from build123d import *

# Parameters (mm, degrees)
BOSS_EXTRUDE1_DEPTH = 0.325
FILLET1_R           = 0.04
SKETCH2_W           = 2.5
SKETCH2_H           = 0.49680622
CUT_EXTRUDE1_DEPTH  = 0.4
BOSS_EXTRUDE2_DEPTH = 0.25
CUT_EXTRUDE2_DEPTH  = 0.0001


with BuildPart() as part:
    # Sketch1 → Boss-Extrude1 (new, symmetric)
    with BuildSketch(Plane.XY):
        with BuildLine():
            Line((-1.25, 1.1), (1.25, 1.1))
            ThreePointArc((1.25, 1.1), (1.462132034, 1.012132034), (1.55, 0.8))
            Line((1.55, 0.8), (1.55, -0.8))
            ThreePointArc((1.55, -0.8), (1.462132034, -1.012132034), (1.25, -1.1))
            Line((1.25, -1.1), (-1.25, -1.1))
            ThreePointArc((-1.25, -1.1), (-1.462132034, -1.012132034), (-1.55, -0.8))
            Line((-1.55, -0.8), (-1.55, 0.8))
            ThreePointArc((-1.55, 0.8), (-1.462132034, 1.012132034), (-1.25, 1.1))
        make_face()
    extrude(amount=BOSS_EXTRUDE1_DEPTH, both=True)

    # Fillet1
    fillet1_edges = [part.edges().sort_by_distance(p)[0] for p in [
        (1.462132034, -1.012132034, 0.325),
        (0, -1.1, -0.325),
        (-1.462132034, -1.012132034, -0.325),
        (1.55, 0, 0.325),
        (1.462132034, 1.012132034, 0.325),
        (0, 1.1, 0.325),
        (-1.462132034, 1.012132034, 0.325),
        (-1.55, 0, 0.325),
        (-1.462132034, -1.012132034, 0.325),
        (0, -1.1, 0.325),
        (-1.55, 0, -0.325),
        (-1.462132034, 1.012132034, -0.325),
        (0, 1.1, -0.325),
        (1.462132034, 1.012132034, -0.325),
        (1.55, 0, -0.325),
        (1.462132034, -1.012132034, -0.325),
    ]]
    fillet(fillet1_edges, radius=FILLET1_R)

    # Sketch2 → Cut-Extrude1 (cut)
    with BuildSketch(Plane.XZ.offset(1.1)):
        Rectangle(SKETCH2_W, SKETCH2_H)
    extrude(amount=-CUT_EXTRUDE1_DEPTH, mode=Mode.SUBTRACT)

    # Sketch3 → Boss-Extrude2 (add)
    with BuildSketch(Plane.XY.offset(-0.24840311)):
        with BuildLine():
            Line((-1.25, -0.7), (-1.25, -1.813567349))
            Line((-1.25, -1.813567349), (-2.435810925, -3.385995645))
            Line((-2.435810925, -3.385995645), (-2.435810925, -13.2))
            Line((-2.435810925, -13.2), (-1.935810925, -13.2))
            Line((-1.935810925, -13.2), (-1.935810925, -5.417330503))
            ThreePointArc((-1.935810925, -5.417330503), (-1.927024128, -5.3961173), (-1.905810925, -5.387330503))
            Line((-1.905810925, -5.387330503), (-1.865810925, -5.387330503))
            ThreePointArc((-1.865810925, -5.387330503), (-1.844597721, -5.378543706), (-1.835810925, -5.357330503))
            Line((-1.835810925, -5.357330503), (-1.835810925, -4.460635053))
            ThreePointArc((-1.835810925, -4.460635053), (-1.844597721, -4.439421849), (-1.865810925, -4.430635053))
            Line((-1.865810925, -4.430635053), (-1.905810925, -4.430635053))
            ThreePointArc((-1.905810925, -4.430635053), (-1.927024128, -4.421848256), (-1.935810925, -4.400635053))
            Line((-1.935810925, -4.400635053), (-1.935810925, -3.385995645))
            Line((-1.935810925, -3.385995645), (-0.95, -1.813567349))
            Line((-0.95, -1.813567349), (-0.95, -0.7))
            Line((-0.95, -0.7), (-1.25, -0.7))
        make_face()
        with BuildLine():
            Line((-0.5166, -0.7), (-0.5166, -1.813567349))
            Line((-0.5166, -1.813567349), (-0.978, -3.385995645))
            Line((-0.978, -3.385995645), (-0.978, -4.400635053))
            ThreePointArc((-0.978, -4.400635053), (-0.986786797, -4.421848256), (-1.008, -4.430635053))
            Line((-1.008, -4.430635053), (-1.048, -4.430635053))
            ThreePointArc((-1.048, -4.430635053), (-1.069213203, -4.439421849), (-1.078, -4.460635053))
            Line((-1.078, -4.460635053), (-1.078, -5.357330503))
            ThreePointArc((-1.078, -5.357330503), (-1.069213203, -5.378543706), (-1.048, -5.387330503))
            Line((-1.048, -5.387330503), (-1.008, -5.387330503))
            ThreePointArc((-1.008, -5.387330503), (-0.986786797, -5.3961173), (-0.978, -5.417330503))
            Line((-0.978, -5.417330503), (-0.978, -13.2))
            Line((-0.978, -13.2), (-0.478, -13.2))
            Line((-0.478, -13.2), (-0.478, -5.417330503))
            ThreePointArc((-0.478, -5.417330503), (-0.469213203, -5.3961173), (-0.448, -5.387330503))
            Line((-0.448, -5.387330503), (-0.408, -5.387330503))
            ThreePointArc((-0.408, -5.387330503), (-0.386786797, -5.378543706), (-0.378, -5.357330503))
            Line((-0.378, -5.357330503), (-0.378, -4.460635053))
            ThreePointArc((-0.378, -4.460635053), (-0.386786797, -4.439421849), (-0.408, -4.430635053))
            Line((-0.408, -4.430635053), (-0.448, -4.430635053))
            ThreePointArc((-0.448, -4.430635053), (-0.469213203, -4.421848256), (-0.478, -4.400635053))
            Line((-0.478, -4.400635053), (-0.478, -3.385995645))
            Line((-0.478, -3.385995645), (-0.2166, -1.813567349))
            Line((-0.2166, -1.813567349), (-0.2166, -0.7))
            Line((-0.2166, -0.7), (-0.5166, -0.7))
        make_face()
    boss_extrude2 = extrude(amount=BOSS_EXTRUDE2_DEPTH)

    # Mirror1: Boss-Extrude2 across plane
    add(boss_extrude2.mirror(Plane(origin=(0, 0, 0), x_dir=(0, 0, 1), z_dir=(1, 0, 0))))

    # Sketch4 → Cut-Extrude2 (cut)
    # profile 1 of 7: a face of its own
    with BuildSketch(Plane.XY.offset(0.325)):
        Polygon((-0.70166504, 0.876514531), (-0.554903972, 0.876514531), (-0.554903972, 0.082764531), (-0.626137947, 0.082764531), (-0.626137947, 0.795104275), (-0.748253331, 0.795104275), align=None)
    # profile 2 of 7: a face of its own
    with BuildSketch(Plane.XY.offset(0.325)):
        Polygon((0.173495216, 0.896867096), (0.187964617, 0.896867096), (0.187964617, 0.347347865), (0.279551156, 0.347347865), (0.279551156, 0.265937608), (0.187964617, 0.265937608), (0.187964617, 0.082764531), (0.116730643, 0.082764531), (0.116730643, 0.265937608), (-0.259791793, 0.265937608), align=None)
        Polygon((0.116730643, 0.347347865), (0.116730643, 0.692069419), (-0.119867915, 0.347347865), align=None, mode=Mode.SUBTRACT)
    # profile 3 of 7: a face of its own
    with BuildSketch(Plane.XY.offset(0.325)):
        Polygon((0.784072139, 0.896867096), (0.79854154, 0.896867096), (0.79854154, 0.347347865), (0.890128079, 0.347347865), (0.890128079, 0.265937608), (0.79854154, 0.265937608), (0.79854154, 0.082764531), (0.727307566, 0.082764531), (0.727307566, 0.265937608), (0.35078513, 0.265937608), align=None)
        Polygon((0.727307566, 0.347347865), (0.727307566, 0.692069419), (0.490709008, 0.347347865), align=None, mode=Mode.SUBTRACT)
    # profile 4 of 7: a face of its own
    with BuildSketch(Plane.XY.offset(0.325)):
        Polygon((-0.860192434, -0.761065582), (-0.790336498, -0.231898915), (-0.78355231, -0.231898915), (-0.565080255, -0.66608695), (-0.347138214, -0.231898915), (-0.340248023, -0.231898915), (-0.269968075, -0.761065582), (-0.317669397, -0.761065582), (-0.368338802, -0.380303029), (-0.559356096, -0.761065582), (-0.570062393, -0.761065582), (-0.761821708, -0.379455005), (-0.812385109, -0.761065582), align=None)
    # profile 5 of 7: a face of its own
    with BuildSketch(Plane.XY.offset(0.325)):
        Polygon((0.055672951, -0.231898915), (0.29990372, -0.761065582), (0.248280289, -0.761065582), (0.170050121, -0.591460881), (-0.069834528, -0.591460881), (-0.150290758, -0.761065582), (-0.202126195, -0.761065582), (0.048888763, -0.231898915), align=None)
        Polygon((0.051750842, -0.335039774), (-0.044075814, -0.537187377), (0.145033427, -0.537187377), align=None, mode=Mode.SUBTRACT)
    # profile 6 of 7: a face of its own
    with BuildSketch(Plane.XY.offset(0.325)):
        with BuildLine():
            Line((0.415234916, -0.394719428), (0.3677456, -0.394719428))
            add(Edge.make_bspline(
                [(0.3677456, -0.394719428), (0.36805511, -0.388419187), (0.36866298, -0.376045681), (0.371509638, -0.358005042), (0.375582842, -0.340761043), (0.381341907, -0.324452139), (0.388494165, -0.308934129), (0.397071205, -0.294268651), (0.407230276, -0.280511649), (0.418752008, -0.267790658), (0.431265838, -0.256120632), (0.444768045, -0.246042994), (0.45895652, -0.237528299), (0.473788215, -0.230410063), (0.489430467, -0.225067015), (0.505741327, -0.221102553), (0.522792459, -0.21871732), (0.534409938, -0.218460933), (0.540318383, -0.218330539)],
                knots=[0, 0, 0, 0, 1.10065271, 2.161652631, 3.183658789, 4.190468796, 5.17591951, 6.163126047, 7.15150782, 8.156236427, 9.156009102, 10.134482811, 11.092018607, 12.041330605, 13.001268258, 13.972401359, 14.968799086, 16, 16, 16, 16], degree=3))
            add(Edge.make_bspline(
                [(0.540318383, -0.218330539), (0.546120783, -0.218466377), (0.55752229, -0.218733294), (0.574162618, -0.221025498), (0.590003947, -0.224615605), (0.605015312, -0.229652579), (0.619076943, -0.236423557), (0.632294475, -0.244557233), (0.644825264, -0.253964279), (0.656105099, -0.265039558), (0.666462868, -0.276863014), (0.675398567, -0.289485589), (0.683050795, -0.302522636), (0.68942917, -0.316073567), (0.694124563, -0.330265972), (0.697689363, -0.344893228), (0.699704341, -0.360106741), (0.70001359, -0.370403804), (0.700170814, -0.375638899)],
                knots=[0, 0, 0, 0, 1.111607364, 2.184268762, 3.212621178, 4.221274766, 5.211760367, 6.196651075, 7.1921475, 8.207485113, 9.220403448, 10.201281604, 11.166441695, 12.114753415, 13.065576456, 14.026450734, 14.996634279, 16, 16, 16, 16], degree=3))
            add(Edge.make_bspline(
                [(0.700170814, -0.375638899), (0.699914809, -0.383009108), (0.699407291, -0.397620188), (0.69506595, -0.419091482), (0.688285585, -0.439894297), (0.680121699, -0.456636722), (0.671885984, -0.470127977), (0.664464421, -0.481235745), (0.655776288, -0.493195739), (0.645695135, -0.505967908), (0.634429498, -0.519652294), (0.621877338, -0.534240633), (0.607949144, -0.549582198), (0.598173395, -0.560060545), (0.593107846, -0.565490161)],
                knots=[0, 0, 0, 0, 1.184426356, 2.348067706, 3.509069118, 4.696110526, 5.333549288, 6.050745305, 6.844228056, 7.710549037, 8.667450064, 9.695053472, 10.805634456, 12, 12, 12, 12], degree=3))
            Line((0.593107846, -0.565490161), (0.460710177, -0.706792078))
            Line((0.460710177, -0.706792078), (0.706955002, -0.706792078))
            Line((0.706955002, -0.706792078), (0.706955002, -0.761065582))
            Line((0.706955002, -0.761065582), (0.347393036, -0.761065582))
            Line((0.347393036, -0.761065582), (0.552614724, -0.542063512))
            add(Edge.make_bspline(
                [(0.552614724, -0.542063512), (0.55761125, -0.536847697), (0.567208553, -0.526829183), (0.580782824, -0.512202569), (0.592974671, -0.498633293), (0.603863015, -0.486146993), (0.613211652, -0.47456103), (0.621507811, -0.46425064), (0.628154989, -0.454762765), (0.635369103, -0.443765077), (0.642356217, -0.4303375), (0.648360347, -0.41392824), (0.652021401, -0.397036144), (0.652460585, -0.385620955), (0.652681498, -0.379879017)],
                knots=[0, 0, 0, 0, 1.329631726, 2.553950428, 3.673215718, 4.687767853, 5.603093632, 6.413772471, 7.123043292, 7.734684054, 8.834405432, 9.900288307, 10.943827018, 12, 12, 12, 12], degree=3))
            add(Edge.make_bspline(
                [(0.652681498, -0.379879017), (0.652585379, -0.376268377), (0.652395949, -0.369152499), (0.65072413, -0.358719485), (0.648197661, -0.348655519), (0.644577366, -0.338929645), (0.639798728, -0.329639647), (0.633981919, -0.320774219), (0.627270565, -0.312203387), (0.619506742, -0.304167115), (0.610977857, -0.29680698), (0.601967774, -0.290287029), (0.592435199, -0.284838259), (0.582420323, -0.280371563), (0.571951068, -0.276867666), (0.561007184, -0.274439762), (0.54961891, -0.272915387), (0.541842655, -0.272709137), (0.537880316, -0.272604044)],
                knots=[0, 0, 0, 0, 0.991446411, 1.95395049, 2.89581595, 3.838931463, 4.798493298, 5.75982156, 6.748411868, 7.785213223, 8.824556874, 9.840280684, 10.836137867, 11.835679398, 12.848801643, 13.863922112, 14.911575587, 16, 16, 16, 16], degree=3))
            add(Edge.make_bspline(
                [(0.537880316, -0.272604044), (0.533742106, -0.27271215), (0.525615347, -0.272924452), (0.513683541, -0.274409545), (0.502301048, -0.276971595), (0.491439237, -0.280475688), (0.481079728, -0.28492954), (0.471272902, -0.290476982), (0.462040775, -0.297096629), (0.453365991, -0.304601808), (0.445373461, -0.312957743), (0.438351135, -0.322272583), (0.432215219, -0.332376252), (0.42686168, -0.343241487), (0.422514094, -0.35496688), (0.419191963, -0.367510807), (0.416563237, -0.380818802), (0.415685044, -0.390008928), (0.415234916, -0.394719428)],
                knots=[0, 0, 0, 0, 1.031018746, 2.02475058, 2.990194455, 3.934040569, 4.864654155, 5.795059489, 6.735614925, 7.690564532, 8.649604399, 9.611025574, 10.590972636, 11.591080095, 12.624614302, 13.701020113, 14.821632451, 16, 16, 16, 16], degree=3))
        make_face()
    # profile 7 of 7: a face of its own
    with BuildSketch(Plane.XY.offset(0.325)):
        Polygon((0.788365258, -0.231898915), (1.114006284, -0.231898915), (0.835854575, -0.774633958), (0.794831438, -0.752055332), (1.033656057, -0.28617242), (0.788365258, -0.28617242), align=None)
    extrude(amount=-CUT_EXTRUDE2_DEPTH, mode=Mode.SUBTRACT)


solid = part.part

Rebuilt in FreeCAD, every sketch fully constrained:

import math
import FreeCAD as App
import Part
import Sketcher


def edges_at(feature, points):
    """Names of the edges that pass closest to the given points."""
    edges = feature.Shape.Edges
    near = lambda p: min(range(len(edges)), key=lambda i: edges[i].distToShape(Part.Vertex(*p))[0])
    return sorted({f"Edge{near(p) + 1}" for p in points})


def add_polygon(sketch, points):
    """Adds a closed chain of lines whose ends are joined by coincident constraints."""
    first, n = sketch.GeometryCount, len(points)
    for a, b in zip(points, points[1:] + points[:1]):
        sketch.addGeometry(Part.LineSegment(App.Vector(*a, 0), App.Vector(*b, 0)), False)
    for i in range(n):
        sketch.addConstraint(Sketcher.Constraint("Coincident", first + i, 2, first + (i + 1) % n, 1))

doc = App.newDocument("Part")
params = doc.addObject("Spreadsheet::Sheet", "Params")
for row, (alias, value) in enumerate([
    ("sketch1_radius", "0.3 mm"),
    ("sketch1_width", "2.5 mm"),
    ("sketch1_height", "1.6 mm"),
    ("pad1_length", "0.65 mm"),
    ("fillet_radius", "0.04 mm"),
    ("sketch2_width", "2.5 mm"),
    ("pocket1_length", "0.4 mm"),
    ("sketch3_radius", "0.03 mm"),
    ("sketch3_width", "0.5 mm"),
    ("sketch3_width2", "0.3 mm"),
    ("sketch3_width3", "0.04 mm"),
    ("pad2_length", "0.25 mm"),
    ("pocket2_length", "0.0001 mm"),
], start=1):
    params.set(f"A{row}", alias)
    params.set(f"B{row}", "=" + value)
    params.setAlias(f"B{row}", alias)

body = doc.addObject("PartDesign::Body", "Body")

sketch1 = body.newObject("Sketcher::SketchObject", "Sketch")
sketch1.AttachmentSupport = (doc.getObject("XY_Plane"), [""])
sketch1.MapMode = "FlatFace"
sketch1.addGeometry(Part.LineSegment(App.Vector(1.25, 1.1, 0), App.Vector(-1.25, 1.1, 0)), False)
sketch1.addGeometry(Part.ArcOfCircle(Part.Circle(App.Vector(-1.25, 0.8, 0), App.Vector(0, 0, 1), 0.3), math.radians(90), math.radians(180)), False)
sketch1.addGeometry(Part.LineSegment(App.Vector(-1.55, 0.8, 0), App.Vector(-1.55, -0.8, 0)), False)
sketch1.addGeometry(Part.ArcOfCircle(Part.Circle(App.Vector(-1.25, -0.8, 0), App.Vector(0, 0, 1), 0.3), math.radians(-180), math.radians(-90)), False)
sketch1.addGeometry(Part.LineSegment(App.Vector(-1.25, -1.1, 0), App.Vector(1.25, -1.1, 0)), False)
sketch1.addGeometry(Part.ArcOfCircle(Part.Circle(App.Vector(1.25, -0.8, 0), App.Vector(0, 0, 1), 0.3), math.radians(-90), math.radians(0)), False)
sketch1.addGeometry(Part.LineSegment(App.Vector(1.55, -0.8, 0), App.Vector(1.55, 0.8, 0)), False)
sketch1.addGeometry(Part.ArcOfCircle(Part.Circle(App.Vector(1.25, 0.8, 0), App.Vector(0, 0, 1), 0.3), math.radians(0), math.radians(90)), False)
sketch1.addConstraint(Sketcher.Constraint("Tangent", 0, 2, 1, 1))
sketch1.addConstraint(Sketcher.Constraint("Tangent", 1, 2, 2, 1))
sketch1.addConstraint(Sketcher.Constraint("Tangent", 2, 2, 3, 1))
sketch1.addConstraint(Sketcher.Constraint("Tangent", 3, 2, 4, 1))
sketch1.addConstraint(Sketcher.Constraint("Tangent", 4, 2, 5, 1))
sketch1.addConstraint(Sketcher.Constraint("Tangent", 5, 2, 6, 1))
sketch1.addConstraint(Sketcher.Constraint("Tangent", 6, 2, 7, 1))
sketch1.addConstraint(Sketcher.Constraint("Tangent", 7, 2, 0, 1))
sketch1.addConstraint(Sketcher.Constraint("Horizontal", 0))
sketch1.addConstraint(Sketcher.Constraint("Vertical", 2))
sketch1.addConstraint(Sketcher.Constraint("Horizontal", 4))
sketch1.addConstraint(Sketcher.Constraint("Vertical", 6))
sketch1.addConstraint(Sketcher.Constraint("Equal", 1, 3))
sketch1.addConstraint(Sketcher.Constraint("Equal", 3, 5))
sketch1.addConstraint(Sketcher.Constraint("Equal", 5, 7))
sketch1.addConstraint(Sketcher.Constraint("Symmetric", 1, 3, 5, 3, -1, 1))
sketch1.addConstraint(Sketcher.Constraint("Radius", 1, 0.3))
sketch1.addConstraint(Sketcher.Constraint("DistanceX", 0, 2, 0, 1, 2.5))
sketch1.addConstraint(Sketcher.Constraint("DistanceY", 2, 2, 2, 1, 1.6))
sketch1.setExpression("Constraints[16]", "Params.sketch1_radius")
sketch1.setExpression("Constraints[17]", "Params.sketch1_width")
sketch1.setExpression("Constraints[18]", "Params.sketch1_height")
pad1 = body.newObject("PartDesign::Pad", "Pad")
pad1.Profile = sketch1
pad1.setExpression("Length", "Params.pad1_length")
pad1.Midplane = True
doc.recompute()

fillet = body.newObject("PartDesign::Fillet", "Fillet")
fillet.Base = (pad1, edges_at(pad1, [
    (1.462, -1.012, 0.325),
    (0, -1.1, -0.325),
    (-1.462, -1.012, -0.325),
    (1.55, 0, 0.325),
    (1.462, 1.012, 0.325),
    (0, 1.1, 0.325),
    (-1.462, 1.012, 0.325),
    (-1.55, 0, 0.325),
    (-1.462, -1.012, 0.325),
    (0, -1.1, 0.325),
    (-1.55, 0, -0.325),
    (-1.462, 1.012, -0.325),
    (0, 1.1, -0.325),
    (1.462, 1.012, -0.325),
    (1.55, 0, -0.325),
    (1.462, -1.012, -0.325),
]))
fillet.setExpression("Radius", "Params.fillet_radius")

sketch2 = body.newObject("Sketcher::SketchObject", "Sketch001")
sketch2.AttachmentSupport = (doc.getObject("XZ_Plane"), [""])
sketch2.MapMode = "FlatFace"
sketch2.AttachmentOffset = App.Placement(App.Vector(0, 0, 1.1), App.Rotation())
add_polygon(sketch2, [(-1.25, 0.25), (-1.25, -0.25), (1.25, -0.25), (1.25, 0.25)])
sketch2.addConstraint(Sketcher.Constraint("Vertical", 0))
sketch2.addConstraint(Sketcher.Constraint("Horizontal", 1))
sketch2.addConstraint(Sketcher.Constraint("Vertical", 2))
sketch2.addConstraint(Sketcher.Constraint("Horizontal", 3))
sketch2.addConstraint(Sketcher.Constraint("Symmetric", 0, 2, 2, 2, -1, 1))
sketch2.addConstraint(Sketcher.Constraint("DistanceX", 1, 1, 1, 2, 2.5))
sketch2.addConstraint(Sketcher.Constraint("DistanceY", 0, 2, 0, 1, 0.496806))
sketch2.setExpression("Constraints[9]", "Params.sketch2_width")
pocket1 = body.newObject("PartDesign::Pocket", "Pocket")
pocket1.Profile = sketch2
pocket1.setExpression("Length", "Params.pocket1_length")

sketch3 = body.newObject("Sketcher::SketchObject", "Sketch002")
sketch3.AttachmentSupport = (doc.getObject("XY_Plane"), [""])
sketch3.MapMode = "FlatFace"
sketch3.AttachmentOffset = App.Placement(App.Vector(0, 0, -0.248403), App.Rotation())
sketch3.addGeometry(Part.LineSegment(App.Vector(-1.25, -0.7, 0), App.Vector(-1.25, -1.814, 0)), False)
sketch3.addGeometry(Part.LineSegment(App.Vector(-1.25, -1.814, 0), App.Vector(-2.436, -3.386, 0)), False)
sketch3.addGeometry(Part.LineSegment(App.Vector(-2.436, -3.386, 0), App.Vector(-2.436, -13.2, 0)), False)
sketch3.addGeometry(Part.LineSegment(App.Vector(-2.436, -13.2, 0), App.Vector(-1.936, -13.2, 0)), False)
sketch3.addGeometry(Part.LineSegment(App.Vector(-1.936, -13.2, 0), App.Vector(-1.936, -5.417, 0)), False)
sketch3.addGeometry(Part.ArcOfCircle(Part.Circle(App.Vector(-1.906, -5.417, 0), App.Vector(0, 0, 1), 0.03), math.radians(90), math.radians(180)), False)
sketch3.addGeometry(Part.LineSegment(App.Vector(-1.906, -5.387, 0), App.Vector(-1.866, -5.387, 0)), False)
sketch3.addGeometry(Part.ArcOfCircle(Part.Circle(App.Vector(-1.866, -5.357, 0), App.Vector(0, 0, 1), 0.03), math.radians(-90), math.radians(0)), False)
sketch3.addGeometry(Part.LineSegment(App.Vector(-1.836, -5.357, 0), App.Vector(-1.836, -4.461, 0)), False)
sketch3.addGeometry(Part.ArcOfCircle(Part.Circle(App.Vector(-1.866, -4.461, 0), App.Vector(0, 0, 1), 0.03), math.radians(0), math.radians(90)), False)
sketch3.addGeometry(Part.LineSegment(App.Vector(-1.866, -4.431, 0), App.Vector(-1.906, -4.431, 0)), False)
sketch3.addGeometry(Part.ArcOfCircle(Part.Circle(App.Vector(-1.906, -4.401, 0), App.Vector(0, 0, 1), 0.03), math.radians(-180), math.radians(-90)), False)
sketch3.addGeometry(Part.LineSegment(App.Vector(-1.936, -4.401, 0), App.Vector(-1.936, -3.386, 0)), False)
sketch3.addGeometry(Part.LineSegment(App.Vector(-1.936, -3.386, 0), App.Vector(-0.95, -1.814, 0)), False)
sketch3.addGeometry(Part.LineSegment(App.Vector(-0.95, -1.814, 0), App.Vector(-0.95, -0.7, 0)), False)
sketch3.addGeometry(Part.LineSegment(App.Vector(-0.95, -0.7, 0), App.Vector(-1.25, -0.7, 0)), False)
sketch3.addGeometry(Part.LineSegment(App.Vector(-0.517, -0.7, 0), App.Vector(-0.517, -1.814, 0)), False)
sketch3.addGeometry(Part.LineSegment(App.Vector(-0.517, -1.814, 0), App.Vector(-0.978, -3.386, 0)), False)
sketch3.addGeometry(Part.LineSegment(App.Vector(-0.978, -3.386, 0), App.Vector(-0.978, -4.401, 0)), False)
sketch3.addGeometry(Part.ArcOfCircle(Part.Circle(App.Vector(-1.008, -4.401, 0), App.Vector(0, 0, 1), 0.03), math.radians(-90), math.radians(0)), False)
sketch3.addGeometry(Part.LineSegment(App.Vector(-1.008, -4.431, 0), App.Vector(-1.048, -4.431, 0)), False)
sketch3.addGeometry(Part.ArcOfCircle(Part.Circle(App.Vector(-1.048, -4.461, 0), App.Vector(0, 0, 1), 0.03), math.radians(90), math.radians(180)), False)
sketch3.addGeometry(Part.LineSegment(App.Vector(-1.078, -4.461, 0), App.Vector(-1.078, -5.357, 0)), False)
sketch3.addGeometry(Part.ArcOfCircle(Part.Circle(App.Vector(-1.048, -5.357, 0), App.Vector(0, 0, 1), 0.03), math.radians(-180), math.radians(-90)), False)
sketch3.addGeometry(Part.LineSegment(App.Vector(-1.048, -5.387, 0), App.Vector(-1.008, -5.387, 0)), False)
sketch3.addGeometry(Part.ArcOfCircle(Part.Circle(App.Vector(-1.008, -5.417, 0), App.Vector(0, 0, 1), 0.03), math.radians(0), math.radians(90)), False)
sketch3.addGeometry(Part.LineSegment(App.Vector(-0.978, -5.417, 0), App.Vector(-0.978, -13.2, 0)), False)
sketch3.addGeometry(Part.LineSegment(App.Vector(-0.978, -13.2, 0), App.Vector(-0.478, -13.2, 0)), False)
sketch3.addGeometry(Part.LineSegment(App.Vector(-0.478, -13.2, 0), App.Vector(-0.478, -5.417, 0)), False)
sketch3.addGeometry(Part.ArcOfCircle(Part.Circle(App.Vector(-0.448, -5.417, 0), App.Vector(0, 0, 1), 0.03), math.radians(90), math.radians(180)), False)
sketch3.addGeometry(Part.LineSegment(App.Vector(-0.448, -5.387, 0), App.Vector(-0.408, -5.387, 0)), False)
sketch3.addGeometry(Part.ArcOfCircle(Part.Circle(App.Vector(-0.408, -5.357, 0), App.Vector(0, 0, 1), 0.03), math.radians(-90), math.radians(0)), False)
sketch3.addGeometry(Part.LineSegment(App.Vector(-0.378, -5.357, 0), App.Vector(-0.378, -4.461, 0)), False)
sketch3.addGeometry(Part.ArcOfCircle(Part.Circle(App.Vector(-0.408, -4.461, 0), App.Vector(0, 0, 1), 0.03), math.radians(0), math.radians(90)), False)
sketch3.addGeometry(Part.LineSegment(App.Vector(-0.408, -4.431, 0), App.Vector(-0.448, -4.431, 0)), False)
sketch3.addGeometry(Part.ArcOfCircle(Part.Circle(App.Vector(-0.448, -4.401, 0), App.Vector(0, 0, 1), 0.03), math.radians(-180), math.radians(-90)), False)
sketch3.addGeometry(Part.LineSegment(App.Vector(-0.478, -4.401, 0), App.Vector(-0.478, -3.386, 0)), False)
sketch3.addGeometry(Part.LineSegment(App.Vector(-0.478, -3.386, 0), App.Vector(-0.217, -1.814, 0)), False)
sketch3.addGeometry(Part.LineSegment(App.Vector(-0.217, -1.814, 0), App.Vector(-0.217, -0.7, 0)), False)
sketch3.addGeometry(Part.LineSegment(App.Vector(-0.217, -0.7, 0), App.Vector(-0.517, -0.7, 0)), False)
sketch3.addConstraint(Sketcher.Constraint("Coincident", 0, 2, 1, 1))
sketch3.addConstraint(Sketcher.Constraint("Coincident", 1, 2, 2, 1))
sketch3.addConstraint(Sketcher.Constraint("Coincident", 2, 2, 3, 1))
sketch3.addConstraint(Sketcher.Constraint("Coincident", 3, 2, 4, 1))
sketch3.addConstraint(Sketcher.Constraint("Tangent", 4, 2, 5, 2))
sketch3.addConstraint(Sketcher.Constraint("Tangent", 5, 1, 6, 1))
sketch3.addConstraint(Sketcher.Constraint("Tangent", 6, 2, 7, 1))
sketch3.addConstraint(Sketcher.Constraint("Tangent", 7, 2, 8, 1))
sketch3.addConstraint(Sketcher.Constraint("Tangent", 8, 2, 9, 1))
sketch3.addConstraint(Sketcher.Constraint("Tangent", 9, 2, 10, 1))
sketch3.addConstraint(Sketcher.Constraint("Tangent", 10, 2, 11, 2))
sketch3.addConstraint(Sketcher.Constraint("Tangent", 11, 1, 12, 1))
sketch3.addConstraint(Sketcher.Constraint("Coincident", 12, 2, 13, 1))
sketch3.addConstraint(Sketcher.Constraint("Coincident", 13, 2, 14, 1))
sketch3.addConstraint(Sketcher.Constraint("Coincident", 14, 2, 15, 1))
sketch3.addConstraint(Sketcher.Constraint("Coincident", 15, 2, 0, 1))
sketch3.addConstraint(Sketcher.Constraint("Coincident", 16, 2, 17, 1))
sketch3.addConstraint(Sketcher.Constraint("Coincident", 17, 2, 18, 1))
sketch3.addConstraint(Sketcher.Constraint("Tangent", 18, 2, 19, 2))
sketch3.addConstraint(Sketcher.Constraint("Tangent", 19, 1, 20, 1))
sketch3.addConstraint(Sketcher.Constraint("Tangent", 20, 2, 21, 1))
sketch3.addConstraint(Sketcher.Constraint("Tangent", 21, 2, 22, 1))
sketch3.addConstraint(Sketcher.Constraint("Tangent", 22, 2, 23, 1))
sketch3.addConstraint(Sketcher.Constraint("Tangent", 23, 2, 24, 1))
sketch3.addConstraint(Sketcher.Constraint("Tangent", 24, 2, 25, 2))
sketch3.addConstraint(Sketcher.Constraint("Tangent", 25, 1, 26, 1))
sketch3.addConstraint(Sketcher.Constraint("Coincident", 26, 2, 27, 1))
sketch3.addConstraint(Sketcher.Constraint("Coincident", 27, 2, 28, 1))
sketch3.addConstraint(Sketcher.Constraint("Tangent", 28, 2, 29, 2))
sketch3.addConstraint(Sketcher.Constraint("Tangent", 29, 1, 30, 1))
sketch3.addConstraint(Sketcher.Constraint("Tangent", 30, 2, 31, 1))
sketch3.addConstraint(Sketcher.Constraint("Tangent", 31, 2, 32, 1))
sketch3.addConstraint(Sketcher.Constraint("Tangent", 32, 2, 33, 1))
sketch3.addConstraint(Sketcher.Constraint("Tangent", 33, 2, 34, 1))
sketch3.addConstraint(Sketcher.Constraint("Tangent", 34, 2, 35, 2))
sketch3.addConstraint(Sketcher.Constraint("Tangent", 35, 1, 36, 1))
sketch3.addConstraint(Sketcher.Constraint("Coincident", 36, 2, 37, 1))
sketch3.addConstraint(Sketcher.Constraint("Coincident", 37, 2, 38, 1))
sketch3.addConstraint(Sketcher.Constraint("Coincident", 38, 2, 39, 1))
sketch3.addConstraint(Sketcher.Constraint("Coincident", 39, 2, 16, 1))
sketch3.addConstraint(Sketcher.Constraint("Vertical", 0))
sketch3.addConstraint(Sketcher.Constraint("Vertical", 2))
sketch3.addConstraint(Sketcher.Constraint("Horizontal", 3))
sketch3.addConstraint(Sketcher.Constraint("Vertical", 4))
sketch3.addConstraint(Sketcher.Constraint("Horizontal", 6))
sketch3.addConstraint(Sketcher.Constraint("Vertical", 8))
sketch3.addConstraint(Sketcher.Constraint("Horizontal", 10))
sketch3.addConstraint(Sketcher.Constraint("Vertical", 12))
sketch3.addConstraint(Sketcher.Constraint("Vertical", 14))
sketch3.addConstraint(Sketcher.Constraint("Horizontal", 15))
sketch3.addConstraint(Sketcher.Constraint("Vertical", 16))
sketch3.addConstraint(Sketcher.Constraint("Vertical", 18))
sketch3.addConstraint(Sketcher.Constraint("Horizontal", 20))
sketch3.addConstraint(Sketcher.Constraint("Vertical", 22))
sketch3.addConstraint(Sketcher.Constraint("Horizontal", 24))
sketch3.addConstraint(Sketcher.Constraint("Vertical", 26))
sketch3.addConstraint(Sketcher.Constraint("Horizontal", 27))
sketch3.addConstraint(Sketcher.Constraint("Vertical", 28))
sketch3.addConstraint(Sketcher.Constraint("Horizontal", 30))
sketch3.addConstraint(Sketcher.Constraint("Vertical", 32))
sketch3.addConstraint(Sketcher.Constraint("Horizontal", 34))
sketch3.addConstraint(Sketcher.Constraint("Vertical", 36))
sketch3.addConstraint(Sketcher.Constraint("Vertical", 38))
sketch3.addConstraint(Sketcher.Constraint("Horizontal", 39))
sketch3.addConstraint(Sketcher.Constraint("Equal", 5, 7))
sketch3.addConstraint(Sketcher.Constraint("Equal", 7, 9))
sketch3.addConstraint(Sketcher.Constraint("Equal", 9, 11))
sketch3.addConstraint(Sketcher.Constraint("Equal", 11, 19))
sketch3.addConstraint(Sketcher.Constraint("Equal", 19, 21))
sketch3.addConstraint(Sketcher.Constraint("Equal", 21, 23))
sketch3.addConstraint(Sketcher.Constraint("Equal", 23, 25))
sketch3.addConstraint(Sketcher.Constraint("Equal", 25, 29))
sketch3.addConstraint(Sketcher.Constraint("Equal", 29, 31))
sketch3.addConstraint(Sketcher.Constraint("Equal", 31, 33))
sketch3.addConstraint(Sketcher.Constraint("Equal", 33, 35))
sketch3.addConstraint(Sketcher.Constraint("Horizontal", 11, 3, 19, 3))
sketch3.addConstraint(Sketcher.Constraint("Horizontal", 7, 3, 23, 3))
sketch3.addConstraint(Sketcher.Constraint("Horizontal", 25, 3, 29, 3))
sketch3.addConstraint(Sketcher.Constraint("Horizontal", 21, 3, 33, 3))
sketch3.addConstraint(Sketcher.Constraint("Horizontal", 1, 2, 12, 2))
sketch3.addConstraint(Sketcher.Constraint("Horizontal", 0, 2, 13, 2))
sketch3.addConstraint(Sketcher.Constraint("Horizontal", 13, 2, 16, 2))
sketch3.addConstraint(Sketcher.Constraint("Horizontal", 12, 2, 17, 2))
sketch3.addConstraint(Sketcher.Constraint("Horizontal", 3, 2, 26, 2))
sketch3.addConstraint(Sketcher.Constraint("Horizontal", 17, 2, 36, 2))
sketch3.addConstraint(Sketcher.Constraint("Horizontal", 16, 2, 37, 2))
sketch3.addConstraint(Sketcher.Constraint("Horizontal", 15, 2, 38, 2))
sketch3.addConstraint(Sketcher.Constraint("Vertical", 5, 3, 11, 3))
sketch3.addConstraint(Sketcher.Constraint("Vertical", 19, 3, 25, 3))
sketch3.addConstraint(Sketcher.Constraint("Vertical", 29, 3, 35, 3))
sketch3.addConstraint(Sketcher.Constraint("Equal", 10, 20))
sketch3.addConstraint(Sketcher.Constraint("Equal", 3, 27))
sketch3.addConstraint(Sketcher.Constraint("Equal", 24, 30))
sketch3.addConstraint(Sketcher.Constraint("Equal", 15, 39))
sketch3.addConstraint(Sketcher.Constraint("Radius", 5, 0.03))
sketch3.addConstraint(Sketcher.Constraint("DistanceX", 3, 1, 3, 2, 0.5))
sketch3.addConstraint(Sketcher.Constraint("DistanceX", 15, 2, 15, 1, 0.3))
sketch3.addConstraint(Sketcher.Constraint("DistanceX", 6, 1, 6, 2, 0.04))
sketch3.addConstraint(Sketcher.Constraint("DistanceY", 2, 2, -1, 1, 13.2))
sketch3.addConstraint(Sketcher.Constraint("DistanceY", 14, 2, -1, 1, 0.7))
sketch3.addConstraint(Sketcher.Constraint("DistanceX", 0, 2, -1, 1, 1.25))
sketch3.addConstraint(Sketcher.Constraint("DistanceX", 19, 3, -1, 1, 1.008))
sketch3.addConstraint(Sketcher.Constraint("DistanceY", 4, 1, 4, 2, 7.782669))
sketch3.addConstraint(Sketcher.Constraint("DistanceY", 12, 1, 12, 2, 1.014639))
sketch3.addConstraint(Sketcher.Constraint("DistanceX", 16, 2, -1, 1, 0.5166))
sketch3.addConstraint(Sketcher.Constraint("DistanceY", 0, 2, 0, 1, 1.113567))
sketch3.addConstraint(Sketcher.Constraint("DistanceY", 2, 2, 2, 1, 9.814004))
sketch3.addConstraint(Sketcher.Constraint("DistanceX", 5, 3, -1, 1, 1.905811))
sketch3.setExpression("Constraints[94]", "Params.sketch3_radius")
sketch3.setExpression("Constraints[95]", "Params.sketch3_width")
sketch3.setExpression("Constraints[96]", "Params.sketch3_width2")
sketch3.setExpression("Constraints[97]", "Params.sketch3_width3")
pad2 = body.newObject("PartDesign::Pad", "Pad001")
pad2.Profile = sketch3
pad2.setExpression("Length", "Params.pad2_length")
doc.recompute()

mirrored = body.newObject("PartDesign::Mirrored", "Mirrored")
mirrored.Originals = [pad2]
mirrored.MirrorPlane = (doc.getObject("YZ_Plane"), [""])
body.Tip = mirrored

sketch4 = body.newObject("Sketcher::SketchObject", "Sketch003")
sketch4.AttachmentSupport = (doc.getObject("XY_Plane"), [""])
sketch4.MapMode = "FlatFace"
sketch4.AttachmentOffset = App.Placement(App.Vector(0, 0, 0.325), App.Rotation())
add_polygon(sketch4, [(-0.554904, 0.876515), (-0.701665, 0.876515), (-0.748253, 0.795104), (-0.626138, 0.795104), (-0.626138, 0.082765), (-0.554904, 0.082765)])
add_polygon(sketch4, [(0.187965, 0.896867), (0.173495, 0.896867), (-0.259792, 0.265938), (0.116731, 0.265938), (0.116731, 0.082765), (0.187965, 0.082765), (0.187965, 0.265938), (0.279551, 0.265938), (0.279551, 0.347348), (0.187965, 0.347348)])
add_polygon(sketch4, [(0.116731, 0.347348), (-0.119868, 0.347348), (0.116731, 0.692069)])
add_polygon(sketch4, [(0.798542, 0.896867), (0.784072, 0.896867), (0.350785, 0.265938), (0.727308, 0.265938), (0.727308, 0.082765), (0.798542, 0.082765), (0.798542, 0.265938), (0.890128, 0.265938), (0.890128, 0.347348), (0.798542, 0.347348)])
add_polygon(sketch4, [(0.727308, 0.347348), (0.490709, 0.347348), (0.727308, 0.692069)])
add_polygon(sketch4, [(-0.790336, -0.231899), (-0.860192, -0.761066), (-0.812385, -0.761066), (-0.761822, -0.379455), (-0.570062, -0.761066), (-0.559356, -0.761066), (-0.368339, -0.380303), (-0.317669, -0.761066), (-0.269968, -0.761066), (-0.340248, -0.231899), (-0.347138, -0.231899), (-0.56508, -0.666087), (-0.783552, -0.231899)])
add_polygon(sketch4, [(0.299904, -0.761066), (0.055673, -0.231899), (0.048889, -0.231899), (-0.202126, -0.761066), (-0.150291, -0.761066), (-0.069835, -0.591461), (0.17005, -0.591461), (0.24828, -0.761066)])
add_polygon(sketch4, [(0.051751, -0.33504), (0.145033, -0.537187), (-0.044076, -0.537187)])
sketch4.addGeometry(Part.LineSegment(App.Vector(0.367746, -0.394719, 0), App.Vector(0.415235, -0.394719, 0)), False)
sketch4.addGeometry(Part.BSplineCurve([App.Vector(0.53788, -0.272604, 0), App.Vector(0.533742, -0.272712, 0), App.Vector(0.525615, -0.272924, 0), App.Vector(0.513684, -0.27441, 0), App.Vector(0.502301, -0.276972, 0), App.Vector(0.491439, -0.280476, 0), App.Vector(0.48108, -0.28493, 0), App.Vector(0.471273, -0.290477, 0), App.Vector(0.462041, -0.297097, 0), App.Vector(0.453366, -0.304602, 0), App.Vector(0.445373, -0.312958, 0), App.Vector(0.438351, -0.322273, 0), App.Vector(0.432215, -0.332376, 0), App.Vector(0.426862, -0.343241, 0), App.Vector(0.422514, -0.354967, 0), App.Vector(0.419192, -0.367511, 0), App.Vector(0.416563, -0.380819, 0), App.Vector(0.415685, -0.390009, 0), App.Vector(0.415235, -0.394719, 0)], [4, 1, 1, 1, 1, 1, 1, 1, 1, 1, 1, 1, 1, 1, 1, 1, 4], [0, 1.031018746, 2.02475058, 2.990194455, 3.934040569, 4.864654155, 5.795059489, 6.735614925, 7.690564532, 8.649604399, 9.611025574, 10.590972636, 11.591080095, 12.624614302, 13.701020113, 14.821632451, 16], False, 3, [1, 1, 1, 1, 1, 1, 1, 1, 1, 1, 1, 1, 1, 1, 1, 1, 1, 1, 1], False), False)
sketch4.addGeometry(Part.BSplineCurve([App.Vector(0.652681, -0.379879, 0), App.Vector(0.652585, -0.376268, 0), App.Vector(0.652396, -0.369152, 0), App.Vector(0.650724, -0.358719, 0), App.Vector(0.648198, -0.348656, 0), App.Vector(0.644577, -0.33893, 0), App.Vector(0.639799, -0.32964, 0), App.Vector(0.633982, -0.320774, 0), App.Vector(0.627271, -0.312203, 0), App.Vector(0.619507, -0.304167, 0), App.Vector(0.610978, -0.296807, 0), App.Vector(0.601968, -0.290287, 0), App.Vector(0.592435, -0.284838, 0), App.Vector(0.58242, -0.280372, 0), App.Vector(0.571951, -0.276868, 0), App.Vector(0.561007, -0.27444, 0), App.Vector(0.549619, -0.272915, 0), App.Vector(0.541843, -0.272709, 0), App.Vector(0.53788, -0.272604, 0)], [4, 1, 1, 1, 1, 1, 1, 1, 1, 1, 1, 1, 1, 1, 1, 1, 4], [0, 0.991446411, 1.95395049, 2.89581595, 3.838931463, 4.798493298, 5.75982156, 6.748411868, 7.785213223, 8.824556874, 9.840280684, 10.836137867, 11.835679398, 12.848801643, 13.863922112, 14.911575587, 16], False, 3, [1, 1, 1, 1, 1, 1, 1, 1, 1, 1, 1, 1, 1, 1, 1, 1, 1, 1, 1], False), False)
sketch4.addGeometry(Part.BSplineCurve([App.Vector(0.552615, -0.542064, 0), App.Vector(0.557611, -0.536848, 0), App.Vector(0.567209, -0.526829, 0), App.Vector(0.580783, -0.512203, 0), App.Vector(0.592975, -0.498633, 0), App.Vector(0.603863, -0.486147, 0), App.Vector(0.613212, -0.474561, 0), App.Vector(0.621508, -0.464251, 0), App.Vector(0.628155, -0.454763, 0), App.Vector(0.635369, -0.443765, 0), App.Vector(0.642356, -0.430337, 0), App.Vector(0.64836, -0.413928, 0), App.Vector(0.652021, -0.397036, 0), App.Vector(0.652461, -0.385621, 0), App.Vector(0.652681, -0.379879, 0)], [4, 1, 1, 1, 1, 1, 1, 1, 1, 1, 1, 1, 4], [0, 1.329631726, 2.553950428, 3.673215718, 4.687767853, 5.603093632, 6.413772471, 7.123043292, 7.734684054, 8.834405432, 9.900288307, 10.943827018, 12], False, 3, [1, 1, 1, 1, 1, 1, 1, 1, 1, 1, 1, 1, 1, 1, 1], False), False)
sketch4.addGeometry(Part.LineSegment(App.Vector(0.552615, -0.542064, 0), App.Vector(0.347393, -0.761066, 0)), False)
sketch4.addGeometry(Part.LineSegment(App.Vector(0.347393, -0.761066, 0), App.Vector(0.706955, -0.761066, 0)), False)
sketch4.addGeometry(Part.LineSegment(App.Vector(0.706955, -0.761066, 0), App.Vector(0.706955, -0.706792, 0)), False)
sketch4.addGeometry(Part.LineSegment(App.Vector(0.706955, -0.706792, 0), App.Vector(0.46071, -0.706792, 0)), False)
sketch4.addGeometry(Part.LineSegment(App.Vector(0.46071, -0.706792, 0), App.Vector(0.593108, -0.56549, 0)), False)
sketch4.addGeometry(Part.BSplineCurve([App.Vector(0.700171, -0.375639, 0), App.Vector(0.699915, -0.383009, 0), App.Vector(0.699407, -0.39762, 0), App.Vector(0.695066, -0.419091, 0), App.Vector(0.688286, -0.439894, 0), App.Vector(0.680122, -0.456637, 0), App.Vector(0.671886, -0.470128, 0), App.Vector(0.664464, -0.481236, 0), App.Vector(0.655776, -0.493196, 0), App.Vector(0.645695, -0.505968, 0), App.Vector(0.634429, -0.519652, 0), App.Vector(0.621877, -0.534241, 0), App.Vector(0.607949, -0.549582, 0), App.Vector(0.598173, -0.560061, 0), App.Vector(0.593108, -0.56549, 0)], [4, 1, 1, 1, 1, 1, 1, 1, 1, 1, 1, 1, 4], [0, 1.184426356, 2.348067706, 3.509069118, 4.696110526, 5.333549288, 6.050745305, 6.844228056, 7.710549037, 8.667450064, 9.695053472, 10.805634456, 12], False, 3, [1, 1, 1, 1, 1, 1, 1, 1, 1, 1, 1, 1, 1, 1, 1], False), False)
sketch4.addGeometry(Part.BSplineCurve([App.Vector(0.540318, -0.218331, 0), App.Vector(0.546121, -0.218466, 0), App.Vector(0.557522, -0.218733, 0), App.Vector(0.574163, -0.221025, 0), App.Vector(0.590004, -0.224616, 0), App.Vector(0.605015, -0.229653, 0), App.Vector(0.619077, -0.236424, 0), App.Vector(0.632294, -0.244557, 0), App.Vector(0.644825, -0.253964, 0), App.Vector(0.656105, -0.26504, 0), App.Vector(0.666463, -0.276863, 0), App.Vector(0.675399, -0.289486, 0), App.Vector(0.683051, -0.302523, 0), App.Vector(0.689429, -0.316074, 0), App.Vector(0.694125, -0.330266, 0), App.Vector(0.697689, -0.344893, 0), App.Vector(0.699704, -0.360107, 0), App.Vector(0.700014, -0.370404, 0), App.Vector(0.700171, -0.375639, 0)], [4, 1, 1, 1, 1, 1, 1, 1, 1, 1, 1, 1, 1, 1, 1, 1, 4], [0, 1.111607364, 2.184268762, 3.212621178, 4.221274766, 5.211760367, 6.196651075, 7.1921475, 8.207485113, 9.220403448, 10.201281604, 11.166441695, 12.114753415, 13.065576456, 14.026450734, 14.996634279, 16], False, 3, [1, 1, 1, 1, 1, 1, 1, 1, 1, 1, 1, 1, 1, 1, 1, 1, 1, 1, 1], False), False)
sketch4.addGeometry(Part.BSplineCurve([App.Vector(0.367746, -0.394719, 0), App.Vector(0.368055, -0.388419, 0), App.Vector(0.368663, -0.376046, 0), App.Vector(0.37151, -0.358005, 0), App.Vector(0.375583, -0.340761, 0), App.Vector(0.381342, -0.324452, 0), App.Vector(0.388494, -0.308934, 0), App.Vector(0.397071, -0.294269, 0), App.Vector(0.40723, -0.280512, 0), App.Vector(0.418752, -0.267791, 0), App.Vector(0.431266, -0.256121, 0), App.Vector(0.444768, -0.246043, 0), App.Vector(0.458957, -0.237528, 0), App.Vector(0.473788, -0.23041, 0), App.Vector(0.48943, -0.225067, 0), App.Vector(0.505741, -0.221103, 0), App.Vector(0.522792, -0.218717, 0), App.Vector(0.53441, -0.218461, 0), App.Vector(0.540318, -0.218331, 0)], [4, 1, 1, 1, 1, 1, 1, 1, 1, 1, 1, 1, 1, 1, 1, 1, 4], [0, 1.10065271, 2.161652631, 3.183658789, 4.190468796, 5.17591951, 6.163126047, 7.15150782, 8.156236427, 9.156009102, 10.134482811, 11.092018607, 12.041330605, 13.001268258, 13.972401359, 14.968799086, 16], False, 3, [1, 1, 1, 1, 1, 1, 1, 1, 1, 1, 1, 1, 1, 1, 1, 1, 1, 1, 1], False), False)
add_polygon(sketch4, [(1.114006, -0.231899), (0.788365, -0.231899), (0.788365, -0.286172), (1.033656, -0.286172), (0.794831, -0.752055), (0.835855, -0.774634)])
sketch4.addConstraint(Sketcher.Constraint("Block", 57))
sketch4.addConstraint(Sketcher.Constraint("Block", 58))
sketch4.addConstraint(Sketcher.Constraint("Block", 59))
sketch4.addConstraint(Sketcher.Constraint("Block", 65))
sketch4.addConstraint(Sketcher.Constraint("Block", 66))
sketch4.addConstraint(Sketcher.Constraint("Block", 67))
sketch4.addConstraint(Sketcher.Constraint("Coincident", 56, 2, 57, 2))
sketch4.addConstraint(Sketcher.Constraint("Coincident", 59, 1, 60, 1))
sketch4.addConstraint(Sketcher.Constraint("Coincident", 60, 2, 61, 1))
sketch4.addConstraint(Sketcher.Constraint("Coincident", 61, 2, 62, 1))
sketch4.addConstraint(Sketcher.Constraint("Coincident", 62, 2, 63, 1))
sketch4.addConstraint(Sketcher.Constraint("Coincident", 63, 2, 64, 1))
sketch4.addConstraint(Sketcher.Constraint("Coincident", 64, 2, 65, 2))
sketch4.addConstraint(Sketcher.Constraint("Coincident", 67, 1, 56, 1))
sketch4.addConstraint(Sketcher.Constraint("Horizontal", 0))
sketch4.addConstraint(Sketcher.Constraint("Horizontal", 2))
sketch4.addConstraint(Sketcher.Constraint("Vertical", 3))
sketch4.addConstraint(Sketcher.Constraint("Horizontal", 4))
sketch4.addConstraint(Sketcher.Constraint("Vertical", 5))
sketch4.addConstraint(Sketcher.Constraint("Horizontal", 6))
sketch4.addConstraint(Sketcher.Constraint("Horizontal", 8))
sketch4.addConstraint(Sketcher.Constraint("Vertical", 9))
sketch4.addConstraint(Sketcher.Constraint("Horizontal", 10))
sketch4.addConstraint(Sketcher.Constraint("Vertical", 11))
sketch4.addConstraint(Sketcher.Constraint("Horizontal", 12))
sketch4.addConstraint(Sketcher.Constraint("Vertical", 13))
sketch4.addConstraint(Sketcher.Constraint("Horizontal", 14))
sketch4.addConstraint(Sketcher.Constraint("Vertical", 15))
sketch4.addConstraint(Sketcher.Constraint("Horizontal", 16))
sketch4.addConstraint(Sketcher.Constraint("Vertical", 18))
sketch4.addConstraint(Sketcher.Constraint("Horizontal", 19))
sketch4.addConstraint(Sketcher.Constraint("Horizontal", 21))
sketch4.addConstraint(Sketcher.Constraint("Vertical", 22))
sketch4.addConstraint(Sketcher.Constraint("Horizontal", 23))
sketch4.addConstraint(Sketcher.Constraint("Vertical", 24))
sketch4.addConstraint(Sketcher.Constraint("Horizontal", 25))
sketch4.addConstraint(Sketcher.Constraint("Vertical", 26))
sketch4.addConstraint(Sketcher.Constraint("Horizontal", 27))
sketch4.addConstraint(Sketcher.Constraint("Vertical", 28))
sketch4.addConstraint(Sketcher.Constraint("Horizontal", 29))
sketch4.addConstraint(Sketcher.Constraint("Vertical", 31))
sketch4.addConstraint(Sketcher.Constraint("Horizontal", 33))
sketch4.addConstraint(Sketcher.Constraint("Horizontal", 36))
sketch4.addConstraint(Sketcher.Constraint("Horizontal", 39))
sketch4.addConstraint(Sketcher.Constraint("Horizontal", 41))
sketch4.addConstraint(Sketcher.Constraint("Horizontal", 44))
sketch4.addConstraint(Sketcher.Constraint("Horizontal", 46))
sketch4.addConstraint(Sketcher.Constraint("Horizontal", 48))
sketch4.addConstraint(Sketcher.Constraint("Horizontal", 50))
sketch4.addConstraint(Sketcher.Constraint("Horizontal", 52))
sketch4.addConstraint(Sketcher.Constraint("Horizontal", 54))
sketch4.addConstraint(Sketcher.Constraint("Horizontal", 61))
sketch4.addConstraint(Sketcher.Constraint("Vertical", 62))
sketch4.addConstraint(Sketcher.Constraint("Horizontal", 63))
sketch4.addConstraint(Sketcher.Constraint("Horizontal", 68))
sketch4.addConstraint(Sketcher.Constraint("Vertical", 69))
sketch4.addConstraint(Sketcher.Constraint("Horizontal", 70))
sketch4.addConstraint(Sketcher.Constraint("DistanceX", 16, 2, 16, 1, 0.236599))
sketch4.addConstraint(Sketcher.Constraint("DistanceX", 29, 2, 29, 1, 0.236599))
sketch4.addConstraint(Sketcher.Constraint("DistanceX", 39, 1, 39, 2, 0.047701))
sketch4.addConstraint(Sketcher.Constraint("Distance", 1, 0.093798))
sketch4.addConstraint(Sketcher.Constraint("DistanceX", 0, 2, 0, 1, 0.146761))
sketch4.addConstraint(Sketcher.Constraint("DistanceX", 6, 2, 6, 1, 0.014469))
sketch4.addConstraint(Sketcher.Constraint("DistanceX", 19, 2, 19, 1, 0.014469))
sketch4.addConstraint(Sketcher.Constraint("DistanceX", 41, 2, 41, 1, 0.00689))
sketch4.addConstraint(Sketcher.Constraint("DistanceX", 54, 2, 54, 1, 0.189109))
sketch4.addConstraint(Sketcher.Constraint("DistanceX", 61, 1, 61, 2, 0.359562))
sketch4.addConstraint(Sketcher.Constraint("DistanceX", 68, 2, 68, 1, 0.325641))
sketch4.addConstraint(Sketcher.Constraint("DistanceX", 70, 1, 70, 2, 0.245291))
sketch4.addConstraint(Sketcher.Constraint("DistanceY", 3, 2, 3, 1, 0.71234))
sketch4.addConstraint(Sketcher.Constraint("DistanceY", 5, 1, 5, 2, 0.79375))
sketch4.addConstraint(Sketcher.Constraint("DistanceY", 13, 1, 13, 2, 0.08141))
sketch4.addConstraint(Sketcher.Constraint("DistanceY", 15, 1, 15, 2, 0.549519))
sketch4.addConstraint(Sketcher.Constraint("DistanceY", 18, 2, 18, 1, 0.344722))
sketch4.addConstraint(Sketcher.Constraint("DistanceY", 26, 1, 26, 2, 0.08141))
sketch4.addConstraint(Sketcher.Constraint("DistanceY", 28, 1, 28, 2, 0.549519))
sketch4.addConstraint(Sketcher.Constraint("DistanceY", 31, 2, 31, 1, 0.344722))
sketch4.addConstraint(Sketcher.Constraint("DistanceY", 40, 2, -1, 1, 0.231899))
sketch4.addConstraint(Sketcher.Constraint("DistanceY", 43, 2, -1, 1, 0.231899))
sketch4.addConstraint(Sketcher.Constraint("DistanceY", 45, 2, -1, 1, 0.231899))
sketch4.addConstraint(Sketcher.Constraint("DistanceY", 68, 2, -1, 1, 0.231899))
sketch4.addConstraint(Sketcher.Constraint("Distance", 35, 0.427081))
sketch4.addConstraint(Sketcher.Constraint("Distance", 37, 0.42599))
sketch4.addConstraint(Sketcher.Constraint("Distance", 38, 0.384119))
sketch4.addConstraint(Sketcher.Constraint("Distance", 45, 0.582809))
sketch4.addConstraint(Sketcher.Constraint("Distance", 49, 0.18772))
sketch4.addConstraint(Sketcher.Constraint("Distance", 55, 0.223711))
sketch4.addConstraint(Sketcher.Constraint("Distance", 60, 0.30013))
sketch4.addConstraint(Sketcher.Constraint("Distance", 71, 0.52353))
sketch4.addConstraint(Sketcher.Constraint("Distance", 73, 0.60986))
sketch4.addConstraint(Sketcher.Constraint("DistanceX", 2, 1, 2, 2, 0.122115))
sketch4.addConstraint(Sketcher.Constraint("DistanceX", 8, 1, 8, 2, 0.376522))
sketch4.addConstraint(Sketcher.Constraint("DistanceX", 10, 1, 10, 2, 0.071234))
sketch4.addConstraint(Sketcher.Constraint("DistanceX", 12, 1, 12, 2, 0.091587))
sketch4.addConstraint(Sketcher.Constraint("DistanceX", 14, 2, 14, 1, 0.091587))
sketch4.addConstraint(Sketcher.Constraint("DistanceX", 21, 1, 21, 2, 0.376522))
sketch4.addConstraint(Sketcher.Constraint("DistanceX", 23, 1, 23, 2, 0.071234))
sketch4.addConstraint(Sketcher.Constraint("DistanceX", 25, 1, 25, 2, 0.091587))
sketch4.addConstraint(Sketcher.Constraint("DistanceX", 27, 2, 27, 1, 0.091587))
sketch4.addConstraint(Sketcher.Constraint("DistanceX", 33, 1, 33, 2, 0.047807))
sketch4.addConstraint(Sketcher.Constraint("DistanceX", 36, 1, 36, 2, 0.010706))
sketch4.addConstraint(Sketcher.Constraint("DistanceX", 44, 2, 44, 1, 0.006784))
sketch4.addConstraint(Sketcher.Constraint("DistanceX", 46, 2, 46, 1, 0.006784))
sketch4.addConstraint(Sketcher.Constraint("DistanceX", 48, 1, 48, 2, 0.051835))
sketch4.addConstraint(Sketcher.Constraint("DistanceX", 50, 1, 50, 2, 0.239885))
sketch4.addConstraint(Sketcher.Constraint("DistanceX", 52, 1, 52, 2, 0.051623))
sketch4.addConstraint(Sketcher.Constraint("DistanceX", 63, 2, 63, 1, 0.246245))
sketch4.addConstraint(Sketcher.Constraint("DistanceY", 9, 2, 9, 1, 0.183173))
sketch4.addConstraint(Sketcher.Constraint("DistanceY", 11, 1, 11, 2, 0.183173))
sketch4.addConstraint(Sketcher.Constraint("DistanceY", 22, 2, 22, 1, 0.183173))
sketch4.addConstraint(Sketcher.Constraint("DistanceY", 24, 1, 24, 2, 0.183173))
sketch4.addConstraint(Sketcher.Constraint("DistanceY", 62, 1, 62, 2, 0.054274))
sketch4.addConstraint(Sketcher.Constraint("DistanceY", 69, 2, 69, 1, 0.054274))
sketch4.addConstraint(Sketcher.Constraint("DistanceX", 7, 2, -1, 1, 0.259792))
sketch4.addConstraint(Sketcher.Constraint("DistanceX", -1, 1, 17, 2, 0.116731))
sketch4.addConstraint(Sketcher.Constraint("DistanceY", -1, 1, 17, 2, 0.692069))
sketch4.addConstraint(Sketcher.Constraint("DistanceX", -1, 1, 23, 2, 0.798542))
sketch4.addConstraint(Sketcher.Constraint("DistanceX", -1, 1, 29, 2, 0.490709))
sketch4.addConstraint(Sketcher.Constraint("DistanceY", -1, 1, 30, 2, 0.692069))
sketch4.addConstraint(Sketcher.Constraint("DistanceX", 34, 2, -1, 1, 0.761822))
sketch4.addConstraint(Sketcher.Constraint("DistanceX", 37, 2, -1, 1, 0.368339))
sketch4.addConstraint(Sketcher.Constraint("DistanceX", 38, 2, -1, 1, 0.317669))
sketch4.addConstraint(Sketcher.Constraint("DistanceX", 40, 2, -1, 1, 0.340248))
sketch4.addConstraint(Sketcher.Constraint("DistanceX", 42, 2, -1, 1, 0.56508))
sketch4.addConstraint(Sketcher.Constraint("DistanceX", -1, 1, 46, 2, 0.048889))
sketch4.addConstraint(Sketcher.Constraint("DistanceX", 48, 2, -1, 1, 0.150291))
sketch4.addConstraint(Sketcher.Constraint("DistanceY", 49, 2, -1, 1, 0.591461))
sketch4.addConstraint(Sketcher.Constraint("DistanceX", -1, 1, 50, 2, 0.17005))
sketch4.addConstraint(Sketcher.Constraint("DistanceX", -1, 1, 51, 2, 0.24828))
sketch4.addConstraint(Sketcher.Constraint("DistanceX", -1, 1, 55, 2, 0.051751))
sketch4.addConstraint(Sketcher.Constraint("DistanceY", 55, 2, -1, 1, 0.33504))
sketch4.addConstraint(Sketcher.Constraint("DistanceX", -1, 1, 63, 2, 0.46071))
sketch4.addConstraint(Sketcher.Constraint("DistanceX", -1, 1, 71, 2, 0.794831))
sketch4.addConstraint(Sketcher.Constraint("Distance", 32, 0.533758))
sketch4.addConstraint(Sketcher.Constraint("Distance", 34, 0.384946))
sketch4.addConstraint(Sketcher.Constraint("Distance", 40, 0.533813))
sketch4.addConstraint(Sketcher.Constraint("Distance", 42, 0.485817))
sketch4.addConstraint(Sketcher.Constraint("Distance", 43, 0.486055))
sketch4.addConstraint(Sketcher.Constraint("Distance", 53, 0.222633))
sketch4.addConstraint(Sketcher.Constraint("Distance", 72, 0.046826))
sketch4.addConstraint(Sketcher.Constraint("DistanceX", 0, 2, -1, 1, 0.701665))
sketch4.addConstraint(Sketcher.Constraint("DistanceY", -1, 1, 0, 2, 0.876515))
sketch4.addConstraint(Sketcher.Constraint("DistanceY", -1, 1, 6, 2, 0.896867))
sketch4.addConstraint(Sketcher.Constraint("DistanceY", -1, 1, 19, 2, 0.896867))
sketch4.addConstraint(Sketcher.Constraint("DistanceX", 32, 2, -1, 1, 0.860192))
sketch4.addConstraint(Sketcher.Constraint("DistanceX", -1, 1, 68, 2, 0.788365))
pocket2 = body.newObject("PartDesign::Pocket", "Pocket001")
pocket2.Profile = sketch4
pocket2.setExpression("Length", "Params.pocket2_length")

doc.recompute()
